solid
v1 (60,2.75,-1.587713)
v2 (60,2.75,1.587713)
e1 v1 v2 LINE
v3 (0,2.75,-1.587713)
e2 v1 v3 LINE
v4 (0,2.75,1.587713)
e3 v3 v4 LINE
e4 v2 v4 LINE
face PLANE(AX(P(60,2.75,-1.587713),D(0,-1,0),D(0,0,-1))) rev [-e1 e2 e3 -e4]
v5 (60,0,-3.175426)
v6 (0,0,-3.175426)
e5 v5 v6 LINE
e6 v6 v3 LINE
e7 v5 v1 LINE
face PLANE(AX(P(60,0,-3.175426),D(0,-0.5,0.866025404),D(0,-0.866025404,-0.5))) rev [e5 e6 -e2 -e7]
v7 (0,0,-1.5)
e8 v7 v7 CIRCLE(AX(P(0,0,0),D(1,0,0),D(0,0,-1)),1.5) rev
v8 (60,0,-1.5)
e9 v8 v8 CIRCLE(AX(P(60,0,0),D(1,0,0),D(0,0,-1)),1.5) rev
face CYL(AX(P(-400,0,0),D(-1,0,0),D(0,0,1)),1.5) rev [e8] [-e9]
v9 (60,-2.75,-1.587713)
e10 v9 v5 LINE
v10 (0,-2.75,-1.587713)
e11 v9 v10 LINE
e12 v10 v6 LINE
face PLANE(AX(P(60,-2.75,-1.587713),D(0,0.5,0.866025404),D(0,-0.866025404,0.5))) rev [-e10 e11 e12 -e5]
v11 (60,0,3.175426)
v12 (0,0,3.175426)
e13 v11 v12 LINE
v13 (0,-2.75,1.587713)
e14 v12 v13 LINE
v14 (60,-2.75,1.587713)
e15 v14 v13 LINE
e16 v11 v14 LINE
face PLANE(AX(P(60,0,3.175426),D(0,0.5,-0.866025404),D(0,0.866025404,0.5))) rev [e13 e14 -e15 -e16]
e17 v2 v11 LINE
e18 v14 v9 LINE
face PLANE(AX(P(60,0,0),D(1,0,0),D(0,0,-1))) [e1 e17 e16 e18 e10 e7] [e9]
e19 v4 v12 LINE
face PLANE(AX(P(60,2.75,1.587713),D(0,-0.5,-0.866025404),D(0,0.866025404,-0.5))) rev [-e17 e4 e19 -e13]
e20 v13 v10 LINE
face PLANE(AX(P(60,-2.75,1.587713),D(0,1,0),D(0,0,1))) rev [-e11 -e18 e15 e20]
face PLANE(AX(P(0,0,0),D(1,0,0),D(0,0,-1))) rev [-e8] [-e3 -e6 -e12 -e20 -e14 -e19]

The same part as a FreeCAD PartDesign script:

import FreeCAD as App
import Part
import Sketcher
from FreeCAD import Vector
Q = App.Units.Quantity

doc = App.newDocument("Part")
body = doc.addObject("PartDesign::Body", "Body")

sketch1 = body.newObject("Sketcher::SketchObject", "Sketch")
sketch1.AttachmentSupport = (doc.getObject("YZ_Plane"), [""])
sketch1.MapMode = "FlatFace"
sketch1.addGeometry([
    Part.LineSegment(Vector(0, -3.175426, 0), Vector(2.75, -1.587713, 0)),
    Part.LineSegment(Vector(2.75, -1.587713, 0), Vector(2.75, 1.587713, 0)),
    Part.LineSegment(Vector(2.75, 1.587713, 0), Vector(0, 3.175426, 0)),
    Part.LineSegment(Vector(0, 3.175426, 0), Vector(-2.75, 1.587713, 0)),
    Part.LineSegment(Vector(-2.75, 1.587713, 0), Vector(-2.75, -1.587713, 0)),
    Part.LineSegment(Vector(-2.75, -1.587713, 0), Vector(0, -3.175426, 0)),
], False)
sketch1.addConstraint([
    Sketcher.Constraint("Coincident", 0, 2, 1, 1),
    Sketcher.Constraint("Coincident", 1, 2, 2, 1),
    Sketcher.Constraint("Coincident", 2, 2, 3, 1),
    Sketcher.Constraint("Coincident", 3, 2, 4, 1),
    Sketcher.Constraint("Coincident", 4, 2, 5, 1),
    Sketcher.Constraint("Coincident", 5, 2, 0, 1),
    Sketcher.Constraint("Vertical", 1),
    Sketcher.Constraint("Vertical", 4),
    Sketcher.Constraint("Symmetric", 0, 2, 3, 2, -1, 1),
    Sketcher.Constraint("Symmetric", 2, 2, 5, 2, -1, 1),
    Sketcher.Constraint("PointOnObject", 2, 2, -2),
    Sketcher.Constraint("Parallel", 2, 5),
    Sketcher.Constraint("Horizontal", 1, 2, 3, 2),
    Sketcher.Constraint("Angle", 0, Q("30 deg")),
    Sketcher.Constraint("DistanceX", 3, 2, 1, 2, 5.5),
    Sketcher.Constraint("DistanceY", 1, 1, 1, 2, 3.175426),
])
pad1 = body.newObject("PartDesign::Pad", "Pad")
pad1.Profile = sketch1
pad1.Length = 60

sketch2 = body.newObject("Sketcher::SketchObject", "Sketch001")
sketch2.AttachmentSupport = (doc.getObject("XY_Plane"), [""])
sketch2.MapMode = "FlatFace"
sketch2.addGeometry([
    Part.LineSegment(Vector(-1, 1.5, 0), Vector(-1, 0, 0)),
    Part.LineSegment(Vector(-1, 0, 0), Vector(61, 0, 0)),
    Part.LineSegment(Vector(61, 0, 0), Vector(61, 1.5, 0)),
    Part.LineSegment(Vector(61, 1.5, 0), Vector(-1, 1.5, 0)),
], False)
sketch2.addConstraint([
    Sketcher.Constraint("Coincident", 0, 2, 1, 1),
    Sketcher.Constraint("Coincident", 1, 2, 2, 1),
    Sketcher.Constraint("Coincident", 2, 2, 3, 1),
    Sketcher.Constraint("Coincident", 3, 2, 0, 1),
    Sketcher.Constraint("Vertical", 0),
    Sketcher.Constraint("Horizontal", 1),
    Sketcher.Constraint("Vertical", 2),
    Sketcher.Constraint("Horizontal", 3),
    Sketcher.Constraint("PointOnObject", 0, 2, -1),
    Sketcher.Constraint("DistanceX", 1, 1, 1, 2, 62.0),
    Sketcher.Constraint("DistanceY", 0, 2, 0, 1, 1.5),
    Sketcher.Constraint("DistanceX", 0, 2, -1, 1, 1.0),
])
groove = body.newObject("PartDesign::Groove", "Groove")
groove.Profile = sketch2
groove.ReferenceAxis = (sketch2, ["H_Axis"])
groove.Angle = 360

doc.recompute()
